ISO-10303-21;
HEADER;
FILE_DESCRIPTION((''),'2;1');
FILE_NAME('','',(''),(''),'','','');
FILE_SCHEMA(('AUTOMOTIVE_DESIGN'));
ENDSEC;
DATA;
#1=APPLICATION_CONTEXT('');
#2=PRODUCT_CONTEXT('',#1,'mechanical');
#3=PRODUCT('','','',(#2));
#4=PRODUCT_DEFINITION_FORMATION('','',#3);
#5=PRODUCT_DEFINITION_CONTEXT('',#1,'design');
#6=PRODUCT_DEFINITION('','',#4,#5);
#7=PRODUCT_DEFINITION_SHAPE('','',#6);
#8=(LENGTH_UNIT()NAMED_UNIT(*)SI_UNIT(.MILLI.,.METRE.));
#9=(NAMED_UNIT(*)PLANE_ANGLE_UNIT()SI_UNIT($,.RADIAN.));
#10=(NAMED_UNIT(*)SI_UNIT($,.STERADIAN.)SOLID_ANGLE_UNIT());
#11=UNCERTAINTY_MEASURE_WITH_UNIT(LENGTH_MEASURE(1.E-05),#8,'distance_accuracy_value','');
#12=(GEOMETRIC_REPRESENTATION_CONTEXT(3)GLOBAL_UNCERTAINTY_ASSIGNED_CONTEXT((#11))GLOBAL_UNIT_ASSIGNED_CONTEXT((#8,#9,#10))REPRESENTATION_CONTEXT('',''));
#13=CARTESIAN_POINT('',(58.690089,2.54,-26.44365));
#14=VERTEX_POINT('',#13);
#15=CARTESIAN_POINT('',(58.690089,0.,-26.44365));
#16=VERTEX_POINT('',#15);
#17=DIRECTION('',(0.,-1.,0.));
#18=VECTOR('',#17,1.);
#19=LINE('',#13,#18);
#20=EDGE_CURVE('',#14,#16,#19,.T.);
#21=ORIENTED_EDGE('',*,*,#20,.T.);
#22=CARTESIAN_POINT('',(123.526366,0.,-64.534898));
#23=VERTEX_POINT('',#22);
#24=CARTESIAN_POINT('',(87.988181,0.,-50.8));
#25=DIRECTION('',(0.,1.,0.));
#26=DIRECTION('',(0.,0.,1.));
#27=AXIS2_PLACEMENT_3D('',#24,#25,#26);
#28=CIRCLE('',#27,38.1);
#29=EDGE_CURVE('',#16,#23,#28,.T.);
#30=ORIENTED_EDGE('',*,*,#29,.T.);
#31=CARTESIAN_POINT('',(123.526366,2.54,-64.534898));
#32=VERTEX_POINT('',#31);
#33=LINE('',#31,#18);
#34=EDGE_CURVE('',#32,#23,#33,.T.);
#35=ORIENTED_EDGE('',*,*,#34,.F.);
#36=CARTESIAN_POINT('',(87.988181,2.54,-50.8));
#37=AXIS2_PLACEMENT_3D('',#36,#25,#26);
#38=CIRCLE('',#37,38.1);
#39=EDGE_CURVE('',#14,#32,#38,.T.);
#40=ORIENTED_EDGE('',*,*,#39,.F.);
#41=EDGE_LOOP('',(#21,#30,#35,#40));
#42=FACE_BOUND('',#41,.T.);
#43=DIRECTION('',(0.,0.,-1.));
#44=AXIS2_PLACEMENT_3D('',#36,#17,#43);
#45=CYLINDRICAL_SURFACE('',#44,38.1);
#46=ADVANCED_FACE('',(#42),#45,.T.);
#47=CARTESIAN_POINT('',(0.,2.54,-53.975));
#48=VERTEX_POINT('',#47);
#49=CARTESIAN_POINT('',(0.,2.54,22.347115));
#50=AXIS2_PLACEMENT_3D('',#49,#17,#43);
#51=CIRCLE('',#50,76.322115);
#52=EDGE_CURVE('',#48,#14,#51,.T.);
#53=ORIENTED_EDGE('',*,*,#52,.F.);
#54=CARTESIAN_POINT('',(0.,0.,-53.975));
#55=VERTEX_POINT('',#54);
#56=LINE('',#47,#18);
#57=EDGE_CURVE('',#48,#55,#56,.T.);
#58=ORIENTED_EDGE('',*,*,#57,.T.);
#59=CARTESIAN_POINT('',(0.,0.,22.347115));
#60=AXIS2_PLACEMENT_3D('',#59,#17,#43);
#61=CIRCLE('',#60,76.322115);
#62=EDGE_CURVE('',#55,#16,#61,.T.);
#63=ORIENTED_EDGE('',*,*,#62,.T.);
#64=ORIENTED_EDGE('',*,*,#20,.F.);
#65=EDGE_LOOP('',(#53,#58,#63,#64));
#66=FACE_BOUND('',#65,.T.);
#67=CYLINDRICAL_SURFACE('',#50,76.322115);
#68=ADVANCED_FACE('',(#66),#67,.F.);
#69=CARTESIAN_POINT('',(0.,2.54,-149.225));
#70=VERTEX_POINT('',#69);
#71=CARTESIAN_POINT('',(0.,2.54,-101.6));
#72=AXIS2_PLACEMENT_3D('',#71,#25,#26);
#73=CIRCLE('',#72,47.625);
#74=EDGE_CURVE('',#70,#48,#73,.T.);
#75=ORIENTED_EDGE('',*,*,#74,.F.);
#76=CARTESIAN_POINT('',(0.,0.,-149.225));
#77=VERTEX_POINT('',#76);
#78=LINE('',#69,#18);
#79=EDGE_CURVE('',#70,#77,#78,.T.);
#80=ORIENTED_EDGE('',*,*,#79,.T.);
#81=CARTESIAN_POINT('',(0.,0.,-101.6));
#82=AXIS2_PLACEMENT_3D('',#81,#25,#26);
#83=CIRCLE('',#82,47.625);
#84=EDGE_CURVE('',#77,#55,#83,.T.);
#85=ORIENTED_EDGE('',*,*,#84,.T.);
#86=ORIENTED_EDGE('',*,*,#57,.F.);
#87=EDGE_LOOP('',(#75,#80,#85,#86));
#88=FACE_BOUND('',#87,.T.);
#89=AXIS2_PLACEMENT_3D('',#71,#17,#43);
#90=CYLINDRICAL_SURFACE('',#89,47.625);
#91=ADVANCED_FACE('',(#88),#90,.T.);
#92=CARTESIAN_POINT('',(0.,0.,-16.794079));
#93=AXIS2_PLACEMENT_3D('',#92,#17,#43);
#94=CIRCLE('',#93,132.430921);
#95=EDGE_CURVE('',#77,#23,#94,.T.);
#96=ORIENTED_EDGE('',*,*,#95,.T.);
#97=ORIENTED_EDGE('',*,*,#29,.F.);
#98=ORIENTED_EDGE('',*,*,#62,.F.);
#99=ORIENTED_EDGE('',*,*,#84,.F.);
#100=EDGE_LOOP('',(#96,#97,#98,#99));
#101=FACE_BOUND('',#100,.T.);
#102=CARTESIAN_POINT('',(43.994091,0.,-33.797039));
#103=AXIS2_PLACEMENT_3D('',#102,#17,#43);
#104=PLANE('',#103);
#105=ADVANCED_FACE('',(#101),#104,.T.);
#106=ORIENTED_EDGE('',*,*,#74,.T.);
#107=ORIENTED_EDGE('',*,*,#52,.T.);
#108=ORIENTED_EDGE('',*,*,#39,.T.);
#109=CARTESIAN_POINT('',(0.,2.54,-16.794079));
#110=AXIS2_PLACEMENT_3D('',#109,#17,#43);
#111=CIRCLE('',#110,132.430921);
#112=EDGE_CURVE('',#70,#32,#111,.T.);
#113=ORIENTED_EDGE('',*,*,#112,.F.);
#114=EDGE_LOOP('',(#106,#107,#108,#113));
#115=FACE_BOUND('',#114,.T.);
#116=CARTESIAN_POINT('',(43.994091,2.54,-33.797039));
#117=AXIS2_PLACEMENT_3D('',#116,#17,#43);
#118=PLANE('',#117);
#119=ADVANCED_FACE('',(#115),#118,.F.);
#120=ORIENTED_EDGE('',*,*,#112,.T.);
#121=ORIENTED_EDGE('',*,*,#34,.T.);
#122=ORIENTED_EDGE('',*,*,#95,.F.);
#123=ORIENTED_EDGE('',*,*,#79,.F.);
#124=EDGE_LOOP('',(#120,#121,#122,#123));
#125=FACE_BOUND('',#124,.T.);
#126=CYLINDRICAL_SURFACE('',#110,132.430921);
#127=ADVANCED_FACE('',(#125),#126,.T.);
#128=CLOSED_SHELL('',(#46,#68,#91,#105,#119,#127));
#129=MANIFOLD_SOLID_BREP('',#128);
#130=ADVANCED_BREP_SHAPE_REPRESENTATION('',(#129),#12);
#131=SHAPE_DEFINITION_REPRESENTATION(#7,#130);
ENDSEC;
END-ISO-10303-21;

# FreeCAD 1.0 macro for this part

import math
import FreeCAD as App
import Part
import Sketcher
from FreeCAD import Vector
Q = App.Units.Quantity

doc = App.newDocument("Part")
body = doc.addObject("PartDesign::Body", "Body")

sketch1 = body.newObject("Sketcher::SketchObject", "Sketch")
sketch1.AttachmentSupport = (doc.getObject("XZ_Plane"), [""])
sketch1.MapMode = "FlatFace"
sketch1.addGeometry(Part.ArcOfCircle(Part.Circle(Vector(0, -102, 0), Vector(0, 0, 1), 48), math.radians(90), math.radians(270)), False)
sketch1.addGeometry(Part.ArcOfCircle(Part.Circle(Vector(0, 22, 0), Vector(0, 0, 1), 76), math.radians(-90), math.radians(-40)), False)
sketch1.addGeometry(Part.ArcOfCircle(Part.Circle(Vector(88, -51, 0), Vector(0, 0, 1), 38), math.radians(-21), math.radians(140)), False)
sketch1.addGeometry(Part.ArcOfCircle(Part.Circle(Vector(0, -17, 0), Vector(0, 0, 1), 132), math.radians(-90), math.radians(-21)), False)
sketch1.addConstraint(Sketcher.Constraint("Tangent", 0, 1, 1, 1))
sketch1.addConstraint(Sketcher.Constraint("Tangent", 1, 2, 2, 2))
sketch1.addConstraint(Sketcher.Constraint("Tangent", 2, 1, 3, 2))
sketch1.addConstraint(Sketcher.Constraint("Tangent", 3, 1, 0, 2))
sketch1.addConstraint(Sketcher.Constraint("PointOnObject", 0, 3, -2))
sketch1.addConstraint(Sketcher.Constraint("PointOnObject", 1, 3, -2))
sketch1.addConstraint(Sketcher.Constraint("PointOnObject", 3, 3, -2))
sketch1.addConstraint(Sketcher.Constraint("Radius", 2, Q("1.5 in")))
sketch1.addConstraint(Sketcher.Constraint("DistanceY", 0, 3, -1, 1, Q("4 in")))
sketch1.addConstraint(Sketcher.Constraint("DistanceY", 2, 3, -1, 1, Q("2 in")))
sketch1.addConstraint(Sketcher.Constraint("Radius", 0, Q("1.875 in")))
sketch1.addConstraint(Sketcher.Constraint("Radius", 3, Q("132.430921 mm")))
pad1 = body.newObject("PartDesign::Pad", "Pad")
pad1.Profile = sketch1
pad1.Length = Q("0.1 in")
pad1.Reversed = True

doc.recompute()
